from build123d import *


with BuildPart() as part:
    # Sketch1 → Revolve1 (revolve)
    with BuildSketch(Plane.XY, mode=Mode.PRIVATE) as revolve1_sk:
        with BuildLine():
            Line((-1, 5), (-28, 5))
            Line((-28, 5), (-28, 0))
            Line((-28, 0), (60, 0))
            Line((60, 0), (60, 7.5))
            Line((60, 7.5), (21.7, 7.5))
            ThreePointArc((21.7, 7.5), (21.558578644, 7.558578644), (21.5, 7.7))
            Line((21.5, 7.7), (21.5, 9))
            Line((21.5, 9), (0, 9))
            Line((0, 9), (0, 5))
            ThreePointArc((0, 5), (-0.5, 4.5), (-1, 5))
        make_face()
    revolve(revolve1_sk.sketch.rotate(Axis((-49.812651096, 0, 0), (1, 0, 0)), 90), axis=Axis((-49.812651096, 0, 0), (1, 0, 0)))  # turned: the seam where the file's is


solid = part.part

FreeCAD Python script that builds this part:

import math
import FreeCAD as App
import Part
import Sketcher
from FreeCAD import Vector
Q = App.Units.Quantity

doc = App.newDocument("Part")
body = doc.addObject("PartDesign::Body", "Body")

# Sketch on XY plane
sketch1 = body.newObject("Sketcher::SketchObject", "Sketch")
sketch1.AttachmentSupport = (doc.getObject("XY_Plane"), [""])
sketch1.MapMode = "FlatFace"
sketch1.addGeometry([
    Part.LineSegment(Vector(-1, 5, 0), Vector(-28, 5, 0)),  # 0
    Part.LineSegment(Vector(-28, 5, 0), Vector(-28, 0, 0)),  # 1
    Part.LineSegment(Vector(-28, 0, 0), Vector(60, 0, 0)),  # 2
    Part.LineSegment(Vector(60, 0, 0), Vector(60, 7.5, 0)),  # 3
    Part.LineSegment(Vector(60, 7.5, 0), Vector(21.7, 7.5, 0)),  # 4
    Part.ArcOfCircle(Part.Circle(Vector(21.7, 7.7, 0), Vector(0, 0, 1), 0.2), math.radians(-180), math.radians(-90)),  # 5
    Part.LineSegment(Vector(21.5, 7.7, 0), Vector(21.5, 9, 0)),  # 6
    Part.LineSegment(Vector(21.5, 9, 0), Vector(0, 9, 0)),  # 7
    Part.LineSegment(Vector(0, 9, 0), Vector(0, 5, 0)),  # 8
    Part.ArcOfCircle(Part.Circle(Vector(-0.5, 5, 0), Vector(0, 0, 1), 0.5), math.radians(180), math.radians(360)),  # 9
], False)
sketch1.addConstraint([
    Sketcher.Constraint("Coincident", 0, 2, 1, 1),
    Sketcher.Constraint("Coincident", 1, 2, 2, 1),
    Sketcher.Constraint("Coincident", 2, 2, 3, 1),
    Sketcher.Constraint("Coincident", 3, 2, 4, 1),
    Sketcher.Constraint("Tangent", 4, 2, 5, 2),
    Sketcher.Constraint("Tangent", 5, 1, 6, 1),
    Sketcher.Constraint("Coincident", 6, 2, 7, 1),
    Sketcher.Constraint("Coincident", 7, 2, 8, 1),
    Sketcher.Constraint("Tangent", 8, 2, 9, 2),
    Sketcher.Constraint("Coincident", 9, 1, 0, 1),
    Sketcher.Constraint("Horizontal", 0),
    Sketcher.Constraint("Vertical", 1),
    Sketcher.Constraint("Horizontal", 2),
    Sketcher.Constraint("Vertical", 3),
    Sketcher.Constraint("Horizontal", 4),
    Sketcher.Constraint("Vertical", 6),
    Sketcher.Constraint("Horizontal", 7),
    Sketcher.Constraint("Vertical", 8),
    Sketcher.Constraint("PointOnObject", 1, 2, -1),
    Sketcher.Constraint("PointOnObject", 7, 2, -2),
    Sketcher.Constraint("Horizontal", 9, 3, 0, 2),
    Sketcher.Constraint("Radius", 5, Q("0.2 mm")),
    Sketcher.Constraint("Radius", 9, Q("0.5 mm")),
    Sketcher.Constraint("DistanceX", 0, 2, 0, 1, Q("27 mm")),
    Sketcher.Constraint("DistanceX", 2, 1, 2, 2, Q("88 mm")),
    Sketcher.Constraint("DistanceY", 1, 2, 1, 1, Q("5 mm")),
    Sketcher.Constraint("DistanceY", 8, 2, 8, 1, Q("4 mm")),
    Sketcher.Constraint("DistanceX", 4, 2, 4, 1, Q("38.3 mm")),
    Sketcher.Constraint("DistanceY", 3, 1, 3, 2, Q("7.5 mm")),
])
revolution = body.newObject("PartDesign::Revolution", "Revolution")
revolution.Profile = sketch1
revolution.ReferenceAxis = (sketch1, ["H_Axis"])
revolution.Angle = 360

doc.recompute()
